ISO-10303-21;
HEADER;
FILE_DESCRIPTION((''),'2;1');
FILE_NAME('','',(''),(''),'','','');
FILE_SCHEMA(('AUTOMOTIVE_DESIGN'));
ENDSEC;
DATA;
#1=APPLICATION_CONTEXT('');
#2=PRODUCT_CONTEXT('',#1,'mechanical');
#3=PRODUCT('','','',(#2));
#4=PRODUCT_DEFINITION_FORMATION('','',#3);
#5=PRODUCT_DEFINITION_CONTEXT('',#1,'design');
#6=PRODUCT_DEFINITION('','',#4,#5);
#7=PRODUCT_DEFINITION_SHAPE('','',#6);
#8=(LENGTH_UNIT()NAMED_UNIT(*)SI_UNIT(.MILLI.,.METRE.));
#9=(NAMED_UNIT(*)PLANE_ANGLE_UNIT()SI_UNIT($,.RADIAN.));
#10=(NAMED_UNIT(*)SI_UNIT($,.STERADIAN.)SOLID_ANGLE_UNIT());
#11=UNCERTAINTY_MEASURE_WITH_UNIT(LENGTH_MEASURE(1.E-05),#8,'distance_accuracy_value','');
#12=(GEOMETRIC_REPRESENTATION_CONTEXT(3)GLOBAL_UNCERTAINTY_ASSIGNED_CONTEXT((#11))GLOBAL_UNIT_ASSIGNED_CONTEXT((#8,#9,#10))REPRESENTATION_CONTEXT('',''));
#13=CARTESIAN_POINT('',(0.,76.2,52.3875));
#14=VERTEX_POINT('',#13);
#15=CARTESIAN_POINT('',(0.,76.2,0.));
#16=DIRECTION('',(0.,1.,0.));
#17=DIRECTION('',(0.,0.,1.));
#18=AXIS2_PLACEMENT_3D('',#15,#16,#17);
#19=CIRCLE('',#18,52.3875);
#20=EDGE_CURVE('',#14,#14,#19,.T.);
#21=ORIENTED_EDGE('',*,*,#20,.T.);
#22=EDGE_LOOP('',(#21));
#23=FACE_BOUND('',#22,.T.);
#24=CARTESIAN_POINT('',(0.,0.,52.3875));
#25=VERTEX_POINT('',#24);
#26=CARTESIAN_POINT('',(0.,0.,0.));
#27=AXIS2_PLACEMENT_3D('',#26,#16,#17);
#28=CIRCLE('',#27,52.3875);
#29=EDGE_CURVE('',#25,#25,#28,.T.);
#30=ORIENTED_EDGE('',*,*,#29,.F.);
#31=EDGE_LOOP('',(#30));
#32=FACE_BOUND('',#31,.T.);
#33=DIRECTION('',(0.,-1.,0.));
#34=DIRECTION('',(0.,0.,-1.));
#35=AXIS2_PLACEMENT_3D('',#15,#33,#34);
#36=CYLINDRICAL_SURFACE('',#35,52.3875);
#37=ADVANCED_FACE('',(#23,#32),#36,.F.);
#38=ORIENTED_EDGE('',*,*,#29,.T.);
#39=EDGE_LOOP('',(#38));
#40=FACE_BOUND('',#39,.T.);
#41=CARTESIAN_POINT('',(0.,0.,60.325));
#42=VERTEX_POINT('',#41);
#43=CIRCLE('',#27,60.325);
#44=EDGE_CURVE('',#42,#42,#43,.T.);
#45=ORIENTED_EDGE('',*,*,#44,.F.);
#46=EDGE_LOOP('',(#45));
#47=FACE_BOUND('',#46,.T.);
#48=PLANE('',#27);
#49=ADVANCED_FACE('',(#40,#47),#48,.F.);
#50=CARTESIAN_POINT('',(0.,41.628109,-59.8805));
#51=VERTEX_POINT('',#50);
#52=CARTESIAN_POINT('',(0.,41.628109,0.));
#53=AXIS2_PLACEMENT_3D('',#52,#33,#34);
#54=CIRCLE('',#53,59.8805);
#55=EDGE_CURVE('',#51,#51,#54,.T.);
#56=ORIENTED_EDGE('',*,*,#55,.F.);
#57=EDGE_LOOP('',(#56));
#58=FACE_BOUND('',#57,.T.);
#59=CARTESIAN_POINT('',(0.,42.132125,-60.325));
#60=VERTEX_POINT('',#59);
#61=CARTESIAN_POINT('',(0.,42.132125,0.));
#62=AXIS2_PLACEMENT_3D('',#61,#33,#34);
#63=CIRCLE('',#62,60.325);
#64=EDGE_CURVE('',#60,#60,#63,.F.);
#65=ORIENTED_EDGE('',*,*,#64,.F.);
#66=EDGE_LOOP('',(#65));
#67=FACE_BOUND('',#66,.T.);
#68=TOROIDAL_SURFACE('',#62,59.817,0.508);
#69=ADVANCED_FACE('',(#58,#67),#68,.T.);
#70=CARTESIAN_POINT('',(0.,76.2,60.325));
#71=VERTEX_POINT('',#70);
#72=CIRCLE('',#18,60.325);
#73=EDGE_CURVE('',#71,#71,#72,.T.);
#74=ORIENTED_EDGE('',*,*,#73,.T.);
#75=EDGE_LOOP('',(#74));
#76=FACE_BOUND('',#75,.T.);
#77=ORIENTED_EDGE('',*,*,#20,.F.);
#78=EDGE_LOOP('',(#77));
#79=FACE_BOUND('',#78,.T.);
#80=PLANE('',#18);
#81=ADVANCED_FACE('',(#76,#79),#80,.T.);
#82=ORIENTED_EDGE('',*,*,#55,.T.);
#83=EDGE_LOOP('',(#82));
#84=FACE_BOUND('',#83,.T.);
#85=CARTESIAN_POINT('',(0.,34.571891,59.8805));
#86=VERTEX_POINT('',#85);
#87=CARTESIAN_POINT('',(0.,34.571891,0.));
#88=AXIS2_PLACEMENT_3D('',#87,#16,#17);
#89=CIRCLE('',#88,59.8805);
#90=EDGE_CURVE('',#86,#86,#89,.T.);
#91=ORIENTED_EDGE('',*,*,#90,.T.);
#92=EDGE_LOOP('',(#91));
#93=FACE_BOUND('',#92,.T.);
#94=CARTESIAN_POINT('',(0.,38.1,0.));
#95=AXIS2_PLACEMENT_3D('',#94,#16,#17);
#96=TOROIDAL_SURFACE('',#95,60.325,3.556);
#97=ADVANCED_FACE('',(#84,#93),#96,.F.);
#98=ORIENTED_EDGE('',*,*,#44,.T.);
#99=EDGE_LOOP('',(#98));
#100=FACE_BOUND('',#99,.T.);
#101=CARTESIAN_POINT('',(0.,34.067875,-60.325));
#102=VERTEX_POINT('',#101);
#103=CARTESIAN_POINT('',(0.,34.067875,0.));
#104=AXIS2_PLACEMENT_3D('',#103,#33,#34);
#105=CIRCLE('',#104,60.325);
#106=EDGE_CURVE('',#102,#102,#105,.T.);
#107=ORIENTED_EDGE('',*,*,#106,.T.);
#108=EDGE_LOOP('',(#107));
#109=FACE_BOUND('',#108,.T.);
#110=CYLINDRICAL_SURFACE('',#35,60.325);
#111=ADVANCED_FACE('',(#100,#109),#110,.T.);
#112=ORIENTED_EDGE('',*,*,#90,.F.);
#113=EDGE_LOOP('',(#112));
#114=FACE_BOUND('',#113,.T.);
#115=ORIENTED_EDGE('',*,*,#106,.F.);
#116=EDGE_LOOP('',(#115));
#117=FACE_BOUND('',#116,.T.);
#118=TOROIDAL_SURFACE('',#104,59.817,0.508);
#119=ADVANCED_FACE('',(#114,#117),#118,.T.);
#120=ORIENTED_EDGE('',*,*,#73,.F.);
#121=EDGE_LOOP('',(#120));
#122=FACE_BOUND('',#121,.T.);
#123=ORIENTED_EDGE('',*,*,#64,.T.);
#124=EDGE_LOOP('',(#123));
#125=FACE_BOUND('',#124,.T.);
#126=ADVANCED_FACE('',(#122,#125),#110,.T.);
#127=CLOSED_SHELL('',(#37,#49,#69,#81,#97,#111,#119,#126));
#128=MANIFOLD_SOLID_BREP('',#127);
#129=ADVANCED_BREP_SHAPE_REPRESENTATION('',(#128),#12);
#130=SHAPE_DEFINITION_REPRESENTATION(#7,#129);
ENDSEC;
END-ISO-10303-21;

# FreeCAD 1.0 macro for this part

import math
import FreeCAD as App
import Part
import Sketcher
from FreeCAD import Vector
Q = App.Units.Quantity


def edges_at(feature, points):
    """Names of the edges that pass closest to the given points."""
    edges = feature.Shape.Edges
    near = lambda p: min(range(len(edges)), key=lambda i: edges[i].distToShape(Part.Vertex(*p))[0])
    return sorted({f"Edge{near(p) + 1}" for p in points})

doc = App.newDocument("Part")
body = doc.addObject("PartDesign::Body", "Body")

# Sketch on XZ plane
sketch1 = body.newObject("Sketcher::SketchObject", "Sketch")
sketch1.AttachmentSupport = (doc.getObject("XZ_Plane"), [""])
sketch1.MapMode = "FlatFace"
sketch1.addGeometry([
    Part.Circle(Vector(0, 0, 0), Vector(0, 0, 1), 60.325),
    Part.Circle(Vector(0, 0, 0), Vector(0, 0, 1), 52.3875),
], False)
sketch1.addConstraint([
    Sketcher.Constraint("Coincident", 0, 3, -1, 1),
    Sketcher.Constraint("Coincident", 1, 3, -1, 1),
    Sketcher.Constraint("Diameter", 0, Q("4.75 in")),
    Sketcher.Constraint("Diameter", 1, Q("4.125 in")),
])
pad1 = body.newObject("PartDesign::Pad", "Pad")
pad1.Profile = sketch1
pad1.Length = Q("3 in")
pad1.Reversed = True

# Sketch on XY plane
sketch2 = body.newObject("Sketcher::SketchObject", "Sketch001")
sketch2.AttachmentSupport = (doc.getObject("XY_Plane"), [""])
sketch2.MapMode = "FlatFace"
sketch2.addGeometry([
    Part.ArcOfCircle(Part.Circle(Vector(60.325, 38.1, 0), Vector(0, 0, 1), 3.556), math.radians(90), math.radians(270)),
    Part.LineSegment(Vector(60.325, 34.544, 0), Vector(60.325, 41.656, 0)),
], False)
sketch2.addConstraint([
    Sketcher.Constraint("Coincident", 0, 1, 1, 2),
    Sketcher.Constraint("Coincident", 1, 1, 0, 2),
    Sketcher.Constraint("Vertical", 1),
    Sketcher.Constraint("Radius", 0, Q("0.14 in")),
    Sketcher.Constraint("DistanceY", -1, 1, 0, 3, Q("1.5 in")),
    Sketcher.Constraint("DistanceX", -1, 1, 0, 3, Q("2.375 in")),
    Sketcher.Constraint("DistanceX", -1, 1, 0, 1, Q("2.375 in")),
])
groove = body.newObject("PartDesign::Groove", "Groove")
groove.Profile = sketch2
groove.ReferenceAxis = (sketch2, ["V_Axis"])
groove.Angle = 360
doc.recompute()

fillet = body.newObject("PartDesign::Fillet", "Fillet")
fillet.Base = (groove, edges_at(groove, [(-60.325, 34.544, 0), (-60.325, 41.656, 0)]))
fillet.Radius = Q("0.02 in")

doc.recompute()
